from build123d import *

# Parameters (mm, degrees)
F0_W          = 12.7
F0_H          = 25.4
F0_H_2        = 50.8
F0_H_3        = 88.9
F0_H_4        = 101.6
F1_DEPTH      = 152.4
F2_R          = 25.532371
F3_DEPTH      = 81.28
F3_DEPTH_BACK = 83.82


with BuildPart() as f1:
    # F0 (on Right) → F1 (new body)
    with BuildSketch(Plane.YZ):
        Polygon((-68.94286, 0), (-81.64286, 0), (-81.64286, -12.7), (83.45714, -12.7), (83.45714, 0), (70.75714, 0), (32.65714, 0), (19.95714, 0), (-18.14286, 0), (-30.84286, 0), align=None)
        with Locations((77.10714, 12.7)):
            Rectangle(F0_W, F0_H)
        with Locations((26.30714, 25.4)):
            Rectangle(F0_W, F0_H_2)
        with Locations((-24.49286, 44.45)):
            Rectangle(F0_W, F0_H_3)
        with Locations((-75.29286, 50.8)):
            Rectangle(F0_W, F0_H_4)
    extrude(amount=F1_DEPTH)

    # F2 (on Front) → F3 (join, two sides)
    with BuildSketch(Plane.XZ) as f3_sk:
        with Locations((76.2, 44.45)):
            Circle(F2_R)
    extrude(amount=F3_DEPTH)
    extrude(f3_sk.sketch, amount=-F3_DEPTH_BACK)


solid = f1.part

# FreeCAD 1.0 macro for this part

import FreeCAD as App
import Part
import Sketcher
from FreeCAD import Vector
Q = App.Units.Quantity

doc = App.newDocument("Part")
body = doc.addObject("PartDesign::Body", "Body")

# Sketch on YZ plane
sketch1 = body.newObject("Sketcher::SketchObject", "Sketch")
sketch1.AttachmentSupport = (doc.getObject("YZ_Plane"), [""])
sketch1.MapMode = "FlatFace"
sketch1.addGeometry([
    Part.LineSegment(Vector(-82, -13, 0), Vector(83, -13, 0)),  # 0
    Part.LineSegment(Vector(83, -13, 0), Vector(83, 25, 0)),  # 1
    Part.LineSegment(Vector(83, 25, 0), Vector(71, 25, 0)),  # 2
    Part.LineSegment(Vector(71, 25, 0), Vector(71, 0, 0)),  # 3
    Part.LineSegment(Vector(71, 0, 0), Vector(33, 0, 0)),  # 4
    Part.LineSegment(Vector(33, 0, 0), Vector(33, 51, 0)),  # 5
    Part.LineSegment(Vector(33, 51, 0), Vector(20, 51, 0)),  # 6
    Part.LineSegment(Vector(20, 51, 0), Vector(20, 0, 0)),  # 7
    Part.LineSegment(Vector(20, 0, 0), Vector(-18, 0, 0)),  # 8
    Part.LineSegment(Vector(-18, 0, 0), Vector(-18, 89, 0)),  # 9
    Part.LineSegment(Vector(-18, 89, 0), Vector(-31, 89, 0)),  # 10
    Part.LineSegment(Vector(-31, 89, 0), Vector(-31, 0, 0)),  # 11
    Part.LineSegment(Vector(-31, 0, 0), Vector(-69, 0, 0)),  # 12
    Part.LineSegment(Vector(-69, 0, 0), Vector(-69, 102, 0)),  # 13
    Part.LineSegment(Vector(-69, 102, 0), Vector(-82, 102, 0)),  # 14
    Part.LineSegment(Vector(-82, 102, 0), Vector(-82, -13, 0)),  # 15
], False)
sketch1.addConstraint([
    Sketcher.Constraint("Coincident", 0, 2, 1, 1),
    Sketcher.Constraint("Coincident", 1, 2, 2, 1),
    Sketcher.Constraint("Coincident", 2, 2, 3, 1),
    Sketcher.Constraint("Coincident", 3, 2, 4, 1),
    Sketcher.Constraint("Coincident", 4, 2, 5, 1),
    Sketcher.Constraint("Coincident", 5, 2, 6, 1),
    Sketcher.Constraint("Coincident", 6, 2, 7, 1),
    Sketcher.Constraint("Coincident", 7, 2, 8, 1),
    Sketcher.Constraint("Coincident", 8, 2, 9, 1),
    Sketcher.Constraint("Coincident", 9, 2, 10, 1),
    Sketcher.Constraint("Coincident", 10, 2, 11, 1),
    Sketcher.Constraint("Coincident", 11, 2, 12, 1),
    Sketcher.Constraint("Coincident", 12, 2, 13, 1),
    Sketcher.Constraint("Coincident", 13, 2, 14, 1),
    Sketcher.Constraint("Coincident", 14, 2, 15, 1),
    Sketcher.Constraint("Coincident", 15, 2, 0, 1),
    Sketcher.Constraint("Horizontal", 0),
    Sketcher.Constraint("Vertical", 1),
    Sketcher.Constraint("Horizontal", 2),
    Sketcher.Constraint("Vertical", 3),
    Sketcher.Constraint("Horizontal", 4),
    Sketcher.Constraint("Vertical", 5),
    Sketcher.Constraint("Horizontal", 6),
    Sketcher.Constraint("Vertical", 7),
    Sketcher.Constraint("Horizontal", 8),
    Sketcher.Constraint("Vertical", 9),
    Sketcher.Constraint("Horizontal", 10),
    Sketcher.Constraint("Vertical", 11),
    Sketcher.Constraint("Horizontal", 12),
    Sketcher.Constraint("Vertical", 13),
    Sketcher.Constraint("Horizontal", 14),
    Sketcher.Constraint("Vertical", 15),
    Sketcher.Constraint("PointOnObject", 3, 2, -1),
    Sketcher.Constraint("PointOnObject", 7, 2, -1),
    Sketcher.Constraint("PointOnObject", 11, 2, -1),
    Sketcher.Constraint("Equal", 2, 6),
    Sketcher.Constraint("Equal", 4, 8),
    Sketcher.Constraint("Equal", 6, 10),
    Sketcher.Constraint("Equal", 8, 12),
    Sketcher.Constraint("Equal", 10, 14),
    Sketcher.Constraint("Equal", 12, 1),
    Sketcher.Constraint("DistanceY", 3, 2, 3, 1, Q("1 in")),
    Sketcher.Constraint("DistanceY", 5, 1, 5, 2, Q("2 in")),
    Sketcher.Constraint("DistanceY", 13, 1, 13, 2, Q("4 in")),
    Sketcher.Constraint("DistanceX", 0, 1, 0, 2, Q("6.5 in")),
    Sketcher.Constraint("DistanceX", 2, 2, 2, 1, Q("0.5 in")),
    Sketcher.Constraint("DistanceY", 9, 1, 9, 2, Q("3.5 in")),
    Sketcher.Constraint("DistanceX", -1, 1, 0, 2, 83.45714),
])
pad1 = body.newObject("PartDesign::Pad", "Pad")
pad1.Profile = sketch1
pad1.Length = Q("6 in")

# Sketch on XZ plane
sketch2 = body.newObject("Sketcher::SketchObject", "Sketch001")
sketch2.AttachmentSupport = (doc.getObject("XZ_Plane"), [""])
sketch2.MapMode = "FlatFace"
sketch2.addGeometry(Part.Circle(Vector(76, 44, 0), Vector(0, 0, 1), 26), False)
sketch2.addConstraint([
    Sketcher.Constraint("DistanceX", -1, 1, 0, 3, Q("3 in")),
    Sketcher.Constraint("DistanceY", -1, 1, 0, 3, Q("1.75 in")),
    Sketcher.Constraint("Diameter", 0, 51.064742),
])
pad2 = body.newObject("PartDesign::Pad", "Pad001")
pad2.Profile = sketch2
pad2.Type = "TwoLengths"
pad2.Length = Q("3.2 in")
pad2.Length2 = Q("3.3 in")

doc.recompute()
